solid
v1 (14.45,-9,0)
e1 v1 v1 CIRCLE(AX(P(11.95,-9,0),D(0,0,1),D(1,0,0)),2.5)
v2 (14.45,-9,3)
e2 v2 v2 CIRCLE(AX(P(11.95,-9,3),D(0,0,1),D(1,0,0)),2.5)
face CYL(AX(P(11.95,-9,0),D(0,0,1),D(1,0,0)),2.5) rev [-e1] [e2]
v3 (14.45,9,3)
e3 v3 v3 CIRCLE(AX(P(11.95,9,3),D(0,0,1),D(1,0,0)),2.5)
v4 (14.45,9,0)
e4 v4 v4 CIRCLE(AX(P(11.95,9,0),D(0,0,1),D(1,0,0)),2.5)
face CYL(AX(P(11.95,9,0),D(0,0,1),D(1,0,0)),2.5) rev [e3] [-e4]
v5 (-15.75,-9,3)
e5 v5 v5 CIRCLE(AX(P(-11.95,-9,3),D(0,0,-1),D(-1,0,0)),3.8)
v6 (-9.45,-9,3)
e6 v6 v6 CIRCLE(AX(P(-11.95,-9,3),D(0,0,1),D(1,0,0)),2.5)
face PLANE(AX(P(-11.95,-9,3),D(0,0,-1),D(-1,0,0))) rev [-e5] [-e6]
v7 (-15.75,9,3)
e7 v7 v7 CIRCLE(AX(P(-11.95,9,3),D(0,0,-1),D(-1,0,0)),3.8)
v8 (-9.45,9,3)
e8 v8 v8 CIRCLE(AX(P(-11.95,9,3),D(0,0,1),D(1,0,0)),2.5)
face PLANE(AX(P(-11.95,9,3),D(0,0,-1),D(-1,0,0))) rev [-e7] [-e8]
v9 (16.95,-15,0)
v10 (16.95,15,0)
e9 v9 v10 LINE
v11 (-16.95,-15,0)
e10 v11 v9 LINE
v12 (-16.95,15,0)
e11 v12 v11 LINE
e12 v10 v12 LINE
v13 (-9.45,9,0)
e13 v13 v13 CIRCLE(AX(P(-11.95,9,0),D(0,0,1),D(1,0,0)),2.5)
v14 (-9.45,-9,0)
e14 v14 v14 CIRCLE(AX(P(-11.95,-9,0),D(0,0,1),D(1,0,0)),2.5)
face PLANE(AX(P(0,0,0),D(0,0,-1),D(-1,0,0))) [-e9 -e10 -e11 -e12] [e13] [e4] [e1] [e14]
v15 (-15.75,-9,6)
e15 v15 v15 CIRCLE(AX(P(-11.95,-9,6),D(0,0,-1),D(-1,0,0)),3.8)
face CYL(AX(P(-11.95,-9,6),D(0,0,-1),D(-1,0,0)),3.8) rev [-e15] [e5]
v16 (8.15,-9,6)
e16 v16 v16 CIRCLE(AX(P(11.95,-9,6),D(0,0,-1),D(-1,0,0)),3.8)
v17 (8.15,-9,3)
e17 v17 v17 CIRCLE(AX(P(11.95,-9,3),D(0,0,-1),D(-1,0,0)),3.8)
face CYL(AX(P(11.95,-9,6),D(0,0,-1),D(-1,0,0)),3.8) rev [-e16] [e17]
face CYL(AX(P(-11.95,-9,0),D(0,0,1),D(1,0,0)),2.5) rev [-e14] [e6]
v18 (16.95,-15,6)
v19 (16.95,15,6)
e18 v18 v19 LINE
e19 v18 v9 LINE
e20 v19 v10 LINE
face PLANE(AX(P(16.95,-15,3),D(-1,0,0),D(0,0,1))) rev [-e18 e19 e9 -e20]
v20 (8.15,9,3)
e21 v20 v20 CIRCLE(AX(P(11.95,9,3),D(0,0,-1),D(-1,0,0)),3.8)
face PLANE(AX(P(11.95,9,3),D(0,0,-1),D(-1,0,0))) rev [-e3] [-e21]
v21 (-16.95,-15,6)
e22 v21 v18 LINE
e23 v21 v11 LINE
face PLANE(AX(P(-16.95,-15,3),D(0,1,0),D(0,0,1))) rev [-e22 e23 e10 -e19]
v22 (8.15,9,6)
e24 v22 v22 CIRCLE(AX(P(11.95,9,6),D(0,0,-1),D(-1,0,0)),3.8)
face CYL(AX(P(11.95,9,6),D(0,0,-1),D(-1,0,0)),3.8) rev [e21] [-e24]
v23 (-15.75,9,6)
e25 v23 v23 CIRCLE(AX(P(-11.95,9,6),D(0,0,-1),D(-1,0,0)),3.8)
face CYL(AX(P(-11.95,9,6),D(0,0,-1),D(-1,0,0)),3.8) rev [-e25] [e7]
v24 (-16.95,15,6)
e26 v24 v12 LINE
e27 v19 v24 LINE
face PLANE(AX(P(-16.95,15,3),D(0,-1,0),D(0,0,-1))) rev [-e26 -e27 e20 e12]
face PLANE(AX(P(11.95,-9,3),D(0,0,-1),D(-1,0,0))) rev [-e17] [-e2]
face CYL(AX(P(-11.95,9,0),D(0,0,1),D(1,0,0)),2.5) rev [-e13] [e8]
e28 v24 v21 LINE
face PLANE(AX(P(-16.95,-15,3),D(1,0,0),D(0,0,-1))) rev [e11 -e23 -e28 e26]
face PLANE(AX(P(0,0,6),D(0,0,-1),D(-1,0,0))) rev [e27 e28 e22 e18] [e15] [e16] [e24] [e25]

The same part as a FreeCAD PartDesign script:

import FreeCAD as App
import Part
import Sketcher
Q = App.Units.Quantity

doc = App.newDocument("Part")
params = doc.addObject("Spreadsheet::Sheet", "Params")
for row, (alias, value) in enumerate([
    ("sketch1_height", "30 mm"),
    ("sketch1_width", "33.9 mm"),
    ("pad1_length", "3 mm"),
    ("sketch2_diameter", "5 mm"),
    ("pocket1_length", "3 mm"),
    ("sketch3_height", "30 mm"),
    ("sketch3_width", "33.9 mm"),
    ("pad2_length", "3 mm"),
    ("sketch4_diameter", "7.6 mm"),
    ("pocket2_length", "3 mm"),
    ("sketch5_diameter", "7.6 mm"),
    ("pocket3_length", "3 mm"),
], start=1):
    params.set(f"A{row}", alias)
    params.set(f"B{row}", "=" + value)
    params.setAlias(f"B{row}", alias)

body = doc.addObject("PartDesign::Body", "Body")

sketch1 = doc.addObject("Sketcher::SketchObject", "Sketch")
body.addObject(sketch1)
sketch1.AttachmentSupport = (doc.XY_Plane, [""])
sketch1.MapMode = "FlatFace"
sketch1.addGeometry(Part.LineSegment(App.Vector(-16.95, 15, 0), App.Vector(-16.95, -15, 0)), False)
sketch1.addGeometry(Part.LineSegment(App.Vector(-16.95, -15, 0), App.Vector(16.95, -15, 0)), False)
sketch1.addGeometry(Part.LineSegment(App.Vector(16.95, -15, 0), App.Vector(16.95, 15, 0)), False)
sketch1.addGeometry(Part.LineSegment(App.Vector(16.95, 15, 0), App.Vector(-16.95, 15, 0)), False)
sketch1.addConstraint(Sketcher.Constraint("Coincident", 0, 2, 1, 1))
sketch1.addConstraint(Sketcher.Constraint("Coincident", 1, 2, 2, 1))
sketch1.addConstraint(Sketcher.Constraint("Coincident", 2, 2, 3, 1))
sketch1.addConstraint(Sketcher.Constraint("Coincident", 3, 2, 0, 1))
sketch1.addConstraint(Sketcher.Constraint("Vertical", 0))
sketch1.addConstraint(Sketcher.Constraint("Horizontal", 1))
sketch1.addConstraint(Sketcher.Constraint("Vertical", 2))
sketch1.addConstraint(Sketcher.Constraint("Horizontal", 3))
sketch1.addConstraint(Sketcher.Constraint("Symmetric", 0, 2, 2, 2, -1, 1))
sketch1.addConstraint(Sketcher.Constraint("DistanceY", 0, 2, 0, 1, Q("30 mm")))
sketch1.addConstraint(Sketcher.Constraint("DistanceX", 1, 1, 1, 2, Q("33.9 mm")))
sketch1.setExpression("Constraints[9]", "Params.sketch1_height")
sketch1.setExpression("Constraints[10]", "Params.sketch1_width")
pad1 = doc.addObject("PartDesign::Pad", "Pad")
body.addObject(pad1)
pad1.Profile = sketch1
pad1.setExpression("Length", "Params.pad1_length")

sketch2 = doc.addObject("Sketcher::SketchObject", "Sketch001")
body.addObject(sketch2)
sketch2.AttachmentSupport = (doc.XY_Plane, [""])
sketch2.MapMode = "FlatFace"
sketch2.AttachmentOffset = App.Placement(App.Vector(0, 0, 3), App.Rotation())
sketch2.addGeometry(Part.Circle(App.Vector(-11.95, 9, 0), App.Vector(0, 0, 1), 2.5), False)
sketch2.addGeometry(Part.Circle(App.Vector(11.95, 9, 0), App.Vector(0, 0, 1), 2.5), False)
sketch2.addGeometry(Part.Circle(App.Vector(11.95, -9, 0), App.Vector(0, 0, 1), 2.5), False)
sketch2.addGeometry(Part.Circle(App.Vector(-11.95, -9, 0), App.Vector(0, 0, 1), 2.5), False)
sketch2.addConstraint(Sketcher.Constraint("Equal", 0, 1))
sketch2.addConstraint(Sketcher.Constraint("Equal", 1, 2))
sketch2.addConstraint(Sketcher.Constraint("Equal", 2, 3))
sketch2.addConstraint(Sketcher.Constraint("Symmetric", 0, 3, 2, 3, -1, 1))
sketch2.addConstraint(Sketcher.Constraint("Symmetric", 1, 3, 3, 3, -1, 1))
sketch2.addConstraint(Sketcher.Constraint("Symmetric", 0, 3, 1, 3, -2))
sketch2.addConstraint(Sketcher.Constraint("Diameter", 0, Q("5 mm")))
sketch2.addConstraint(Sketcher.Constraint("DistanceY", -1, 1, 0, 3, Q("9 mm")))
sketch2.addConstraint(Sketcher.Constraint("DistanceX", 0, 3, 1, 3, Q("23.9 mm")))
sketch2.setExpression("Constraints[6]", "Params.sketch2_diameter")
pocket1 = doc.addObject("PartDesign::Pocket", "Pocket")
body.addObject(pocket1)
pocket1.Profile = sketch2
pocket1.setExpression("Length", "Params.pocket1_length")

sketch3 = doc.addObject("Sketcher::SketchObject", "Sketch002")
body.addObject(sketch3)
sketch3.AttachmentSupport = (doc.XY_Plane, [""])
sketch3.MapMode = "FlatFace"
sketch3.AttachmentOffset = App.Placement(App.Vector(0, 0, 3), App.Rotation())
sketch3.addGeometry(Part.LineSegment(App.Vector(-16.95, 15, 0), App.Vector(-16.95, -15, 0)), False)
sketch3.addGeometry(Part.LineSegment(App.Vector(-16.95, -15, 0), App.Vector(16.95, -15, 0)), False)
sketch3.addGeometry(Part.LineSegment(App.Vector(16.95, -15, 0), App.Vector(16.95, 15, 0)), False)
sketch3.addGeometry(Part.LineSegment(App.Vector(16.95, 15, 0), App.Vector(-16.95, 15, 0)), False)
sketch3.addConstraint(Sketcher.Constraint("Coincident", 0, 2, 1, 1))
sketch3.addConstraint(Sketcher.Constraint("Coincident", 1, 2, 2, 1))
sketch3.addConstraint(Sketcher.Constraint("Coincident", 2, 2, 3, 1))
sketch3.addConstraint(Sketcher.Constraint("Coincident", 3, 2, 0, 1))
sketch3.addConstraint(Sketcher.Constraint("Vertical", 0))
sketch3.addConstraint(Sketcher.Constraint("Horizontal", 1))
sketch3.addConstraint(Sketcher.Constraint("Vertical", 2))
sketch3.addConstraint(Sketcher.Constraint("Horizontal", 3))
sketch3.addConstraint(Sketcher.Constraint("Symmetric", 0, 2, 2, 2, -1, 1))
sketch3.addConstraint(Sketcher.Constraint("DistanceY", 0, 2, 0, 1, Q("30 mm")))
sketch3.addConstraint(Sketcher.Constraint("DistanceX", 1, 1, 1, 2, Q("33.9 mm")))
sketch3.setExpression("Constraints[9]", "Params.sketch3_height")
sketch3.setExpression("Constraints[10]", "Params.sketch3_width")
pad2 = doc.addObject("PartDesign::Pad", "Pad001")
body.addObject(pad2)
pad2.Profile = sketch3
pad2.setExpression("Length", "Params.pad2_length")

sketch4 = doc.addObject("Sketcher::SketchObject", "Sketch003")
body.addObject(sketch4)
sketch4.AttachmentSupport = (doc.XY_Plane, [""])
sketch4.MapMode = "FlatFace"
sketch4.AttachmentOffset = App.Placement(App.Vector(0, 0, 3), App.Rotation())
sketch4.addGeometry(Part.Circle(App.Vector(-11.95, 9, 0), App.Vector(0, 0, 1), 3.8), False)
sketch4.addConstraint(Sketcher.Constraint("Diameter", 0, Q("7.6 mm")))
sketch4.addConstraint(Sketcher.Constraint("DistanceY", -1, 1, 0, 3, Q("9 mm")))
sketch4.addConstraint(Sketcher.Constraint("DistanceX", 0, 3, -1, 1, Q("11.95 mm")))
sketch4.setExpression("Constraints[0]", "Params.sketch4_diameter")
pocket2 = doc.addObject("PartDesign::Pocket", "Pocket001")
body.addObject(pocket2)
pocket2.Profile = sketch4
pocket2.setExpression("Length", "Params.pocket2_length")
pocket2.Reversed = True

sketch5 = doc.addObject("Sketcher::SketchObject", "Sketch004")
body.addObject(sketch5)
sketch5.AttachmentSupport = (doc.XY_Plane, [""])
sketch5.MapMode = "FlatFace"
sketch5.AttachmentOffset = App.Placement(App.Vector(0, 0, 3), App.Rotation())
sketch5.addGeometry(Part.Circle(App.Vector(11.95, 9, 0), App.Vector(0, 0, 1), 3.8), False)
sketch5.addGeometry(Part.Circle(App.Vector(11.95, -9, 0), App.Vector(0, 0, 1), 3.8), False)
sketch5.addGeometry(Part.Circle(App.Vector(-11.95, -9, 0), App.Vector(0, 0, 1), 3.8), False)
sketch5.addConstraint(Sketcher.Constraint("Equal", 0, 1))
sketch5.addConstraint(Sketcher.Constraint("Equal", 1, 2))
sketch5.addConstraint(Sketcher.Constraint("Symmetric", 0, 3, 2, 3, -1, 1))
sketch5.addConstraint(Sketcher.Constraint("Symmetric", 1, 3, 2, 3, -2))
sketch5.addConstraint(Sketcher.Constraint("Diameter", 0, Q("7.6 mm")))
sketch5.addConstraint(Sketcher.Constraint("DistanceY", -1, 1, 0, 3, Q("9 mm")))
sketch5.addConstraint(Sketcher.Constraint("DistanceX", 2, 3, 1, 3, Q("23.9 mm")))
sketch5.setExpression("Constraints[4]", "Params.sketch5_diameter")
pocket3 = doc.addObject("PartDesign::Pocket", "Pocket002")
body.addObject(pocket3)
pocket3.Profile = sketch5
pocket3.setExpression("Length", "Params.pocket3_length")
pocket3.Reversed = True

doc.recompute()
